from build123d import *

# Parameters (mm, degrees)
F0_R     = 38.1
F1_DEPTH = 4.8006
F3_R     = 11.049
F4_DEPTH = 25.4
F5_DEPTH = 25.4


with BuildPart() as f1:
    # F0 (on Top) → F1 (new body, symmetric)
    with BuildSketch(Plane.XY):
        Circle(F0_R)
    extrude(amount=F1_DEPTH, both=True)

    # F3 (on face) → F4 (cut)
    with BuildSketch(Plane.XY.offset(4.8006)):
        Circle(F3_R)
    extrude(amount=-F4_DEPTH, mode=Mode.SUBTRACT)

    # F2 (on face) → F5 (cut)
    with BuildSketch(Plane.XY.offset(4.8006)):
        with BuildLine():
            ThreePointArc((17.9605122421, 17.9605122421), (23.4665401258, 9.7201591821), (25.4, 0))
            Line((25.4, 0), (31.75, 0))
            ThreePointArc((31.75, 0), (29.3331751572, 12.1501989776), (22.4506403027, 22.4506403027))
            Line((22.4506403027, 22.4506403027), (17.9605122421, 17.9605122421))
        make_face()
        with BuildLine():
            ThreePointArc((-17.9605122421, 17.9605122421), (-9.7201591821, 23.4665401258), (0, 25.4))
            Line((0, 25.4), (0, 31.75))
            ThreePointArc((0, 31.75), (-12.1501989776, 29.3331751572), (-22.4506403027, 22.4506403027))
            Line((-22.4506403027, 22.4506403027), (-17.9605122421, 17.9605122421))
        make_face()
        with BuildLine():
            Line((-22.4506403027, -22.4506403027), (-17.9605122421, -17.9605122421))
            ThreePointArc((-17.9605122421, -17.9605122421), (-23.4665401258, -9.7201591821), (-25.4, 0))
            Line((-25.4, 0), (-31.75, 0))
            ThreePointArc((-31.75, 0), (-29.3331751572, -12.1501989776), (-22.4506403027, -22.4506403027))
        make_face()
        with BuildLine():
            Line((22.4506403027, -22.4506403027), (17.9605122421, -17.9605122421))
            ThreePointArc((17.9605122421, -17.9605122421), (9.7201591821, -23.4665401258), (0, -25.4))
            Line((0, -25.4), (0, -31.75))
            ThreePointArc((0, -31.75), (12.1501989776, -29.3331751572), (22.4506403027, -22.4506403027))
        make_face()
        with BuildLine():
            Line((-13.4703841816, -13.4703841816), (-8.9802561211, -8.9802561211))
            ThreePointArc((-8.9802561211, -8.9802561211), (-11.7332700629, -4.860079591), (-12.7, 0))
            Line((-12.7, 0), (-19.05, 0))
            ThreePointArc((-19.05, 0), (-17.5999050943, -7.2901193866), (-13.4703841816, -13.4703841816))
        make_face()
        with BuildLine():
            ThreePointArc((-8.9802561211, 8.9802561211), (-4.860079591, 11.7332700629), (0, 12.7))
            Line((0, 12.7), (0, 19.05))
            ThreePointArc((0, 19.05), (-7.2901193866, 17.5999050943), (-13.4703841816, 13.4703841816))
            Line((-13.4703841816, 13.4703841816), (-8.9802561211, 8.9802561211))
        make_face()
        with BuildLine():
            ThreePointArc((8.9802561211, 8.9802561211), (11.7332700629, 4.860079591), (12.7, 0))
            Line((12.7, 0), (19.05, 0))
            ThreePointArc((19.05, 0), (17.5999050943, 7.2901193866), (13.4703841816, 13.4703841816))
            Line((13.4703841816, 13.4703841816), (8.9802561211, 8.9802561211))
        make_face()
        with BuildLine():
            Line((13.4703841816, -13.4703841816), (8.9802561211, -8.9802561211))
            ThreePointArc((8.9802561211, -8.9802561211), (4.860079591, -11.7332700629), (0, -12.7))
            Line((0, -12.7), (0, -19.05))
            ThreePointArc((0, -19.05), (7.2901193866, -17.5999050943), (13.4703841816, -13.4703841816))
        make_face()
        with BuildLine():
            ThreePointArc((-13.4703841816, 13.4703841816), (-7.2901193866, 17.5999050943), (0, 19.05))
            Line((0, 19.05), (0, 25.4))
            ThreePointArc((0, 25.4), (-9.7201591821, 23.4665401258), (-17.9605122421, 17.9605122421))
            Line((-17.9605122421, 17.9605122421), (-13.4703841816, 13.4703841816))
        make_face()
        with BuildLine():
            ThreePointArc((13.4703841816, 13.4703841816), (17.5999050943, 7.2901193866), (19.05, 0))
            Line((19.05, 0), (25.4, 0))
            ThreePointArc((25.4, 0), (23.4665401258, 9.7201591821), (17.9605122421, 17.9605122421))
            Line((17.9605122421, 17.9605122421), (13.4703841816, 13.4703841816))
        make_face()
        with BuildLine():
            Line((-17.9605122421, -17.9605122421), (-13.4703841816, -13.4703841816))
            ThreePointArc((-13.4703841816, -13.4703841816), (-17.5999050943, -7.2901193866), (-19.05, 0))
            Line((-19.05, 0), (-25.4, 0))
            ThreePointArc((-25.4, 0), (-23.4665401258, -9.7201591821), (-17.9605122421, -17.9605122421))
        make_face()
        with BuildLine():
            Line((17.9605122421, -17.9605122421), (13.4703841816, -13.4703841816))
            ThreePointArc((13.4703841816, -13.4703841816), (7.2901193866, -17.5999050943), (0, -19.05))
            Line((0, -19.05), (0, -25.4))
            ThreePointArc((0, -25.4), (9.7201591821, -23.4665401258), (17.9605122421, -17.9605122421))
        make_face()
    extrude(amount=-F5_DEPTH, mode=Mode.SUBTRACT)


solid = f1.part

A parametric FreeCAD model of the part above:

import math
import FreeCAD as App
import Part
import Sketcher

V = App.Vector
Q = App.Units.Quantity

doc = App.newDocument("Part")
body = doc.addObject("PartDesign::Body", "Body")

sketch1 = doc.addObject("Sketcher::SketchObject", "Sketch")
body.addObject(sketch1)
sketch1.AttachmentSupport = (doc.XY_Plane, [""])
sketch1.MapMode = "FlatFace"
sketch1.addGeometry(Part.Circle(V(0, 0, 0), V(0, 0, 1), 38), False)
sketch1.addConstraint([
    Sketcher.Constraint("Coincident", 0, 3, -1, 1),
    Sketcher.Constraint("Diameter", 0, Q("3 in")),
])
pad1 = doc.addObject("PartDesign::Pad", "Pad")
body.addObject(pad1)
pad1.Profile = sketch1
pad1.Length = Q("0.378 in")
pad1.Midplane = True

sketch2 = doc.addObject("Sketcher::SketchObject", "Sketch001")
body.addObject(sketch2)
sketch2.AttachmentSupport = (doc.XY_Plane, [""])
sketch2.MapMode = "FlatFace"
sketch2.AttachmentOffset = App.Placement(V(0, 0, 0.189 * 25.4), App.Rotation())
sketch2.addGeometry(Part.Circle(V(0, 0, 0), V(0, 0, 1), 11), False)
sketch2.addConstraint([
    Sketcher.Constraint("Coincident", 0, 3, -1, 1),
    Sketcher.Constraint("Diameter", 0, Q("0.87 in")),
])
pocket1 = doc.addObject("PartDesign::Pocket", "Pocket")
body.addObject(pocket1)
pocket1.Profile = sketch2
pocket1.Length = Q("1 in")

sketch3 = doc.addObject("Sketcher::SketchObject", "Sketch002")
body.addObject(sketch3)
sketch3.AttachmentSupport = (doc.XY_Plane, [""])
sketch3.MapMode = "FlatFace"
sketch3.AttachmentOffset = App.Placement(V(0, 0, 0.189 * 25.4), App.Rotation())
sketch3.addGeometry([
    Part.ArcOfCircle(Part.Circle(V(0, 0, 0), V(0, 0, 1), 32), math.radians(0), math.radians(45)),
    Part.LineSegment(V(22, 22, 0), V(9, 9, 0)),
    Part.ArcOfCircle(Part.Circle(V(0, 0, 0), V(0, 0, 1), 13), math.radians(0), math.radians(45)),
    Part.LineSegment(V(13, 0, 0), V(32, 0, 0)),
    Part.ArcOfCircle(Part.Circle(V(0, 0, 0), V(0, 0, 1), 32), math.radians(90), math.radians(135)),
    Part.LineSegment(V(-22, 22, 0), V(-9, 9, 0)),
    Part.ArcOfCircle(Part.Circle(V(0, 0, 0), V(0, 0, 1), 13), math.radians(90), math.radians(135)),
    Part.LineSegment(V(0, 13, 0), V(0, 32, 0)),
    Part.LineSegment(V(-22, -22, 0), V(-9, -9, 0)),
    Part.ArcOfCircle(Part.Circle(V(0, 0, 0), V(0, 0, 1), 13), math.radians(180), math.radians(225)),
    Part.LineSegment(V(-13, 0, 0), V(-32, 0, 0)),
    Part.ArcOfCircle(Part.Circle(V(0, 0, 0), V(0, 0, 1), 32), math.radians(180), math.radians(225)),
    Part.LineSegment(V(22, -22, 0), V(9, -9, 0)),
    Part.ArcOfCircle(Part.Circle(V(0, 0, 0), V(0, 0, 1), 13), math.radians(-90), math.radians(-45)),
    Part.LineSegment(V(0, -13, 0), V(0, -32, 0)),
    Part.ArcOfCircle(Part.Circle(V(0, 0, 0), V(0, 0, 1), 32), math.radians(-90), math.radians(-45)),
], False)
sketch3.addConstraint([
    Sketcher.Constraint("Coincident", 0, 2, 1, 1),
    Sketcher.Constraint("Coincident", 1, 2, 2, 2),
    Sketcher.Constraint("Coincident", 2, 1, 3, 1),
    Sketcher.Constraint("Coincident", 3, 2, 0, 1),
    Sketcher.Constraint("Coincident", 4, 2, 5, 1),
    Sketcher.Constraint("Coincident", 5, 2, 6, 2),
    Sketcher.Constraint("Coincident", 6, 1, 7, 1),
    Sketcher.Constraint("Coincident", 7, 2, 4, 1),
    Sketcher.Constraint("Coincident", 8, 2, 9, 2),
    Sketcher.Constraint("Coincident", 9, 1, 10, 1),
    Sketcher.Constraint("Coincident", 10, 2, 11, 1),
    Sketcher.Constraint("Coincident", 11, 2, 8, 1),
    Sketcher.Constraint("Coincident", 12, 2, 13, 2),
    Sketcher.Constraint("Coincident", 13, 1, 14, 1),
    Sketcher.Constraint("Coincident", 14, 2, 15, 1),
    Sketcher.Constraint("Coincident", 15, 2, 12, 1),
    Sketcher.Constraint("Horizontal", 3),
    Sketcher.Constraint("Vertical", 7),
    Sketcher.Constraint("Horizontal", 10),
    Sketcher.Constraint("Vertical", 14),
    Sketcher.Constraint("Coincident", 0, 3, -1, 1),
    Sketcher.Constraint("Coincident", 2, 3, -1, 1),
    Sketcher.Constraint("Coincident", 4, 3, -1, 1),
    Sketcher.Constraint("Coincident", 6, 3, -1, 1),
    Sketcher.Constraint("Coincident", 9, 3, -1, 1),
    Sketcher.Constraint("Coincident", 11, 3, -1, 1),
    Sketcher.Constraint("Coincident", 13, 3, -1, 1),
    Sketcher.Constraint("Coincident", 15, 3, -1, 1),
    Sketcher.Constraint("Equal", 0, 4),
    Sketcher.Constraint("Equal", 2, 6),
    Sketcher.Constraint("Equal", 6, 9),
    Sketcher.Constraint("Equal", 4, 11),
    Sketcher.Constraint("Equal", 9, 13),
    Sketcher.Constraint("Equal", 11, 15),
    Sketcher.Constraint("PointOnObject", 2, 1, -1),
    Sketcher.Constraint("PointOnObject", 6, 1, -2),
    Sketcher.Constraint("PointOnObject", 9, 1, -1),
    Sketcher.Constraint("PointOnObject", 13, 1, -2),
    Sketcher.Constraint("Perpendicular", 1, 5),
    Sketcher.Constraint("Perpendicular", 5, 8),
    Sketcher.Constraint("Perpendicular", 8, 12),
    Sketcher.Constraint("Horizontal", 0, 2, 4, 2),
    Sketcher.Constraint("Horizontal", 1, 2, 5, 2),
    Sketcher.Constraint("Horizontal", 8, 2, 12, 2),
    Sketcher.Constraint("Vertical", 5, 2, 8, 2),
    Sketcher.Constraint("Radius", 2, Q("0.5 in")),
    Sketcher.Constraint("Radius", 0, Q("1.25 in")),
    Sketcher.Constraint("DistanceX", -1, 1, 0, 2, Q("22.45064 mm")),
])
pocket2 = doc.addObject("PartDesign::Pocket", "Pocket001")
body.addObject(pocket2)
pocket2.Profile = sketch3
pocket2.Length = Q("1 in")

doc.recompute()
